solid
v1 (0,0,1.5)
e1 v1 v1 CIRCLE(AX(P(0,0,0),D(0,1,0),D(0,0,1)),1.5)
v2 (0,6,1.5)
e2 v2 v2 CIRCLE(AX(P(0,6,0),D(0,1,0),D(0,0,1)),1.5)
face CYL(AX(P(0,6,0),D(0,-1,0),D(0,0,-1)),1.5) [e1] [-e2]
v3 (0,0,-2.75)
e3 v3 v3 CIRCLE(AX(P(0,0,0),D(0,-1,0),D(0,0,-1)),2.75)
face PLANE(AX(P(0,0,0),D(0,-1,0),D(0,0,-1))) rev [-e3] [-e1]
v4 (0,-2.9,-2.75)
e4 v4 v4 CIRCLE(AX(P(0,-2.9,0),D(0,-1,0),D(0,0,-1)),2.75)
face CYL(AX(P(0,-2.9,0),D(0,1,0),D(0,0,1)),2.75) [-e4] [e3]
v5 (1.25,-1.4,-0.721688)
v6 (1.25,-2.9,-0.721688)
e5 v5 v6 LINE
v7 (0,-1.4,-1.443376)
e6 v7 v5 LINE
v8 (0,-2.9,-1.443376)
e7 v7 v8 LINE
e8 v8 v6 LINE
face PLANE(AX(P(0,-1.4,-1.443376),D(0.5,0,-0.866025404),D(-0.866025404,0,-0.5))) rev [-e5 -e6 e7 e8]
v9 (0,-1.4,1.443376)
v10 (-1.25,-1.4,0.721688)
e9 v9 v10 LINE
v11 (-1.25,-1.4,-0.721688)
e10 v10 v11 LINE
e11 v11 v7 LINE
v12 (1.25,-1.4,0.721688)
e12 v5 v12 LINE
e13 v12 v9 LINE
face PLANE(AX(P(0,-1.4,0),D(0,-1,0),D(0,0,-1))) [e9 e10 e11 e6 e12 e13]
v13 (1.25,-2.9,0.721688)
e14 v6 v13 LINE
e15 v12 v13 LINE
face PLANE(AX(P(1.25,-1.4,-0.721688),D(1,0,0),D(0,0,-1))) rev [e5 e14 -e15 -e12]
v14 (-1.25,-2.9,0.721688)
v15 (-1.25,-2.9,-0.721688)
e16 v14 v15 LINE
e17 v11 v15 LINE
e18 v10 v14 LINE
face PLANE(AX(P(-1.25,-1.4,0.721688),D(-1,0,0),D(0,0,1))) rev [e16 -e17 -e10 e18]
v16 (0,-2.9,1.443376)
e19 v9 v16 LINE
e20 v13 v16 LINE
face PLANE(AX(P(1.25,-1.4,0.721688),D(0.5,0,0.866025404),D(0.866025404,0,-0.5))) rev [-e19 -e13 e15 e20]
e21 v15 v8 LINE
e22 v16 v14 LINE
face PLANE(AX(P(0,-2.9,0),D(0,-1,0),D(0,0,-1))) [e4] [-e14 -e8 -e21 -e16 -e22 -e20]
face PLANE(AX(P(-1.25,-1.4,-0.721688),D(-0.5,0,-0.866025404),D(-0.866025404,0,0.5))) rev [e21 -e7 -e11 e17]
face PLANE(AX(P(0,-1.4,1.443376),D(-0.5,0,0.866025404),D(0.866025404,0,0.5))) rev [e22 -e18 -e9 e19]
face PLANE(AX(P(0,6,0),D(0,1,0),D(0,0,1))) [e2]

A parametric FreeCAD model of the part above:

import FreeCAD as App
import Part
import Sketcher
from FreeCAD import Vector
Q = App.Units.Quantity


def add_polygon(sketch, points):
    """Adds a closed chain of lines whose ends are joined by coincident constraints."""
    first, n = sketch.GeometryCount, len(points)
    for a, b in zip(points, points[1:] + points[:1]):
        sketch.addGeometry(Part.LineSegment(App.Vector(*a, 0), App.Vector(*b, 0)), False)
    for i in range(n):
        sketch.addConstraint(Sketcher.Constraint("Coincident", first + i, 2, first + (i + 1) % n, 1))

doc = App.newDocument("Part")
body = doc.addObject("PartDesign::Body", "Body")

sketch1 = body.newObject("Sketcher::SketchObject", "Sketch")
sketch1.AttachmentSupport = (doc.getObject("XZ_Plane"), [""])
sketch1.MapMode = "FlatFace"
sketch1.addGeometry(Part.Circle(Vector(0, 0, 0), Vector(0, 0, 1), 1.5), False)
sketch1.addConstraint([
    Sketcher.Constraint("Coincident", 0, 3, -1, 1),
    Sketcher.Constraint("Diameter", 0, 3.0),
])
pad1 = body.newObject("PartDesign::Pad", "Pad")
pad1.Profile = sketch1
pad1.Length = 6
pad1.Reversed = True

sketch2 = body.newObject("Sketcher::SketchObject", "Sketch001")
sketch2.AttachmentSupport = (doc.getObject("XZ_Plane"), [""])
sketch2.MapMode = "FlatFace"
sketch2.addGeometry(Part.Circle(Vector(0, 0, 0), Vector(0, 0, 1), 2.8), False)
sketch2.addConstraint([
    Sketcher.Constraint("Coincident", 0, 3, -1, 1),
    Sketcher.Constraint("Diameter", 0, 5.5),
])
pad2 = body.newObject("PartDesign::Pad", "Pad001")
pad2.Profile = sketch2
pad2.Length = 2.9

sketch3 = body.newObject("Sketcher::SketchObject", "Sketch002")
sketch3.AttachmentSupport = (doc.getObject("XZ_Plane"), [""])
sketch3.MapMode = "FlatFace"
sketch3.AttachmentOffset = App.Placement(Vector(0, 0, 2.9), App.Rotation())
add_polygon(sketch3, [(1.2, 0.7), (0, 1.4), (-1.2, 0.7), (-1.2, -0.7), (0, -1.4), (1.2, -0.7)])
sketch3.addConstraint([
    Sketcher.Constraint("Vertical", 2),
    Sketcher.Constraint("Vertical", 5),
    Sketcher.Constraint("Symmetric", 0, 2, 3, 2, -1, 1),
    Sketcher.Constraint("Symmetric", 1, 2, 4, 2, -1, 1),
    Sketcher.Constraint("PointOnObject", 0, 2, -2),
    Sketcher.Constraint("Parallel", 0, 3),
    Sketcher.Constraint("Horizontal", 2, 2, 4, 2),
    Sketcher.Constraint("Angle", 0, Q("150 deg")),
    Sketcher.Constraint("DistanceX", 2, 2, 4, 2, 2.5),
    Sketcher.Constraint("DistanceY", 2, 2, 2, 1, 1.443376),
])
pocket1 = body.newObject("PartDesign::Pocket", "Pocket")
pocket1.Profile = sketch3
pocket1.Length = 1.5

doc.recompute()
